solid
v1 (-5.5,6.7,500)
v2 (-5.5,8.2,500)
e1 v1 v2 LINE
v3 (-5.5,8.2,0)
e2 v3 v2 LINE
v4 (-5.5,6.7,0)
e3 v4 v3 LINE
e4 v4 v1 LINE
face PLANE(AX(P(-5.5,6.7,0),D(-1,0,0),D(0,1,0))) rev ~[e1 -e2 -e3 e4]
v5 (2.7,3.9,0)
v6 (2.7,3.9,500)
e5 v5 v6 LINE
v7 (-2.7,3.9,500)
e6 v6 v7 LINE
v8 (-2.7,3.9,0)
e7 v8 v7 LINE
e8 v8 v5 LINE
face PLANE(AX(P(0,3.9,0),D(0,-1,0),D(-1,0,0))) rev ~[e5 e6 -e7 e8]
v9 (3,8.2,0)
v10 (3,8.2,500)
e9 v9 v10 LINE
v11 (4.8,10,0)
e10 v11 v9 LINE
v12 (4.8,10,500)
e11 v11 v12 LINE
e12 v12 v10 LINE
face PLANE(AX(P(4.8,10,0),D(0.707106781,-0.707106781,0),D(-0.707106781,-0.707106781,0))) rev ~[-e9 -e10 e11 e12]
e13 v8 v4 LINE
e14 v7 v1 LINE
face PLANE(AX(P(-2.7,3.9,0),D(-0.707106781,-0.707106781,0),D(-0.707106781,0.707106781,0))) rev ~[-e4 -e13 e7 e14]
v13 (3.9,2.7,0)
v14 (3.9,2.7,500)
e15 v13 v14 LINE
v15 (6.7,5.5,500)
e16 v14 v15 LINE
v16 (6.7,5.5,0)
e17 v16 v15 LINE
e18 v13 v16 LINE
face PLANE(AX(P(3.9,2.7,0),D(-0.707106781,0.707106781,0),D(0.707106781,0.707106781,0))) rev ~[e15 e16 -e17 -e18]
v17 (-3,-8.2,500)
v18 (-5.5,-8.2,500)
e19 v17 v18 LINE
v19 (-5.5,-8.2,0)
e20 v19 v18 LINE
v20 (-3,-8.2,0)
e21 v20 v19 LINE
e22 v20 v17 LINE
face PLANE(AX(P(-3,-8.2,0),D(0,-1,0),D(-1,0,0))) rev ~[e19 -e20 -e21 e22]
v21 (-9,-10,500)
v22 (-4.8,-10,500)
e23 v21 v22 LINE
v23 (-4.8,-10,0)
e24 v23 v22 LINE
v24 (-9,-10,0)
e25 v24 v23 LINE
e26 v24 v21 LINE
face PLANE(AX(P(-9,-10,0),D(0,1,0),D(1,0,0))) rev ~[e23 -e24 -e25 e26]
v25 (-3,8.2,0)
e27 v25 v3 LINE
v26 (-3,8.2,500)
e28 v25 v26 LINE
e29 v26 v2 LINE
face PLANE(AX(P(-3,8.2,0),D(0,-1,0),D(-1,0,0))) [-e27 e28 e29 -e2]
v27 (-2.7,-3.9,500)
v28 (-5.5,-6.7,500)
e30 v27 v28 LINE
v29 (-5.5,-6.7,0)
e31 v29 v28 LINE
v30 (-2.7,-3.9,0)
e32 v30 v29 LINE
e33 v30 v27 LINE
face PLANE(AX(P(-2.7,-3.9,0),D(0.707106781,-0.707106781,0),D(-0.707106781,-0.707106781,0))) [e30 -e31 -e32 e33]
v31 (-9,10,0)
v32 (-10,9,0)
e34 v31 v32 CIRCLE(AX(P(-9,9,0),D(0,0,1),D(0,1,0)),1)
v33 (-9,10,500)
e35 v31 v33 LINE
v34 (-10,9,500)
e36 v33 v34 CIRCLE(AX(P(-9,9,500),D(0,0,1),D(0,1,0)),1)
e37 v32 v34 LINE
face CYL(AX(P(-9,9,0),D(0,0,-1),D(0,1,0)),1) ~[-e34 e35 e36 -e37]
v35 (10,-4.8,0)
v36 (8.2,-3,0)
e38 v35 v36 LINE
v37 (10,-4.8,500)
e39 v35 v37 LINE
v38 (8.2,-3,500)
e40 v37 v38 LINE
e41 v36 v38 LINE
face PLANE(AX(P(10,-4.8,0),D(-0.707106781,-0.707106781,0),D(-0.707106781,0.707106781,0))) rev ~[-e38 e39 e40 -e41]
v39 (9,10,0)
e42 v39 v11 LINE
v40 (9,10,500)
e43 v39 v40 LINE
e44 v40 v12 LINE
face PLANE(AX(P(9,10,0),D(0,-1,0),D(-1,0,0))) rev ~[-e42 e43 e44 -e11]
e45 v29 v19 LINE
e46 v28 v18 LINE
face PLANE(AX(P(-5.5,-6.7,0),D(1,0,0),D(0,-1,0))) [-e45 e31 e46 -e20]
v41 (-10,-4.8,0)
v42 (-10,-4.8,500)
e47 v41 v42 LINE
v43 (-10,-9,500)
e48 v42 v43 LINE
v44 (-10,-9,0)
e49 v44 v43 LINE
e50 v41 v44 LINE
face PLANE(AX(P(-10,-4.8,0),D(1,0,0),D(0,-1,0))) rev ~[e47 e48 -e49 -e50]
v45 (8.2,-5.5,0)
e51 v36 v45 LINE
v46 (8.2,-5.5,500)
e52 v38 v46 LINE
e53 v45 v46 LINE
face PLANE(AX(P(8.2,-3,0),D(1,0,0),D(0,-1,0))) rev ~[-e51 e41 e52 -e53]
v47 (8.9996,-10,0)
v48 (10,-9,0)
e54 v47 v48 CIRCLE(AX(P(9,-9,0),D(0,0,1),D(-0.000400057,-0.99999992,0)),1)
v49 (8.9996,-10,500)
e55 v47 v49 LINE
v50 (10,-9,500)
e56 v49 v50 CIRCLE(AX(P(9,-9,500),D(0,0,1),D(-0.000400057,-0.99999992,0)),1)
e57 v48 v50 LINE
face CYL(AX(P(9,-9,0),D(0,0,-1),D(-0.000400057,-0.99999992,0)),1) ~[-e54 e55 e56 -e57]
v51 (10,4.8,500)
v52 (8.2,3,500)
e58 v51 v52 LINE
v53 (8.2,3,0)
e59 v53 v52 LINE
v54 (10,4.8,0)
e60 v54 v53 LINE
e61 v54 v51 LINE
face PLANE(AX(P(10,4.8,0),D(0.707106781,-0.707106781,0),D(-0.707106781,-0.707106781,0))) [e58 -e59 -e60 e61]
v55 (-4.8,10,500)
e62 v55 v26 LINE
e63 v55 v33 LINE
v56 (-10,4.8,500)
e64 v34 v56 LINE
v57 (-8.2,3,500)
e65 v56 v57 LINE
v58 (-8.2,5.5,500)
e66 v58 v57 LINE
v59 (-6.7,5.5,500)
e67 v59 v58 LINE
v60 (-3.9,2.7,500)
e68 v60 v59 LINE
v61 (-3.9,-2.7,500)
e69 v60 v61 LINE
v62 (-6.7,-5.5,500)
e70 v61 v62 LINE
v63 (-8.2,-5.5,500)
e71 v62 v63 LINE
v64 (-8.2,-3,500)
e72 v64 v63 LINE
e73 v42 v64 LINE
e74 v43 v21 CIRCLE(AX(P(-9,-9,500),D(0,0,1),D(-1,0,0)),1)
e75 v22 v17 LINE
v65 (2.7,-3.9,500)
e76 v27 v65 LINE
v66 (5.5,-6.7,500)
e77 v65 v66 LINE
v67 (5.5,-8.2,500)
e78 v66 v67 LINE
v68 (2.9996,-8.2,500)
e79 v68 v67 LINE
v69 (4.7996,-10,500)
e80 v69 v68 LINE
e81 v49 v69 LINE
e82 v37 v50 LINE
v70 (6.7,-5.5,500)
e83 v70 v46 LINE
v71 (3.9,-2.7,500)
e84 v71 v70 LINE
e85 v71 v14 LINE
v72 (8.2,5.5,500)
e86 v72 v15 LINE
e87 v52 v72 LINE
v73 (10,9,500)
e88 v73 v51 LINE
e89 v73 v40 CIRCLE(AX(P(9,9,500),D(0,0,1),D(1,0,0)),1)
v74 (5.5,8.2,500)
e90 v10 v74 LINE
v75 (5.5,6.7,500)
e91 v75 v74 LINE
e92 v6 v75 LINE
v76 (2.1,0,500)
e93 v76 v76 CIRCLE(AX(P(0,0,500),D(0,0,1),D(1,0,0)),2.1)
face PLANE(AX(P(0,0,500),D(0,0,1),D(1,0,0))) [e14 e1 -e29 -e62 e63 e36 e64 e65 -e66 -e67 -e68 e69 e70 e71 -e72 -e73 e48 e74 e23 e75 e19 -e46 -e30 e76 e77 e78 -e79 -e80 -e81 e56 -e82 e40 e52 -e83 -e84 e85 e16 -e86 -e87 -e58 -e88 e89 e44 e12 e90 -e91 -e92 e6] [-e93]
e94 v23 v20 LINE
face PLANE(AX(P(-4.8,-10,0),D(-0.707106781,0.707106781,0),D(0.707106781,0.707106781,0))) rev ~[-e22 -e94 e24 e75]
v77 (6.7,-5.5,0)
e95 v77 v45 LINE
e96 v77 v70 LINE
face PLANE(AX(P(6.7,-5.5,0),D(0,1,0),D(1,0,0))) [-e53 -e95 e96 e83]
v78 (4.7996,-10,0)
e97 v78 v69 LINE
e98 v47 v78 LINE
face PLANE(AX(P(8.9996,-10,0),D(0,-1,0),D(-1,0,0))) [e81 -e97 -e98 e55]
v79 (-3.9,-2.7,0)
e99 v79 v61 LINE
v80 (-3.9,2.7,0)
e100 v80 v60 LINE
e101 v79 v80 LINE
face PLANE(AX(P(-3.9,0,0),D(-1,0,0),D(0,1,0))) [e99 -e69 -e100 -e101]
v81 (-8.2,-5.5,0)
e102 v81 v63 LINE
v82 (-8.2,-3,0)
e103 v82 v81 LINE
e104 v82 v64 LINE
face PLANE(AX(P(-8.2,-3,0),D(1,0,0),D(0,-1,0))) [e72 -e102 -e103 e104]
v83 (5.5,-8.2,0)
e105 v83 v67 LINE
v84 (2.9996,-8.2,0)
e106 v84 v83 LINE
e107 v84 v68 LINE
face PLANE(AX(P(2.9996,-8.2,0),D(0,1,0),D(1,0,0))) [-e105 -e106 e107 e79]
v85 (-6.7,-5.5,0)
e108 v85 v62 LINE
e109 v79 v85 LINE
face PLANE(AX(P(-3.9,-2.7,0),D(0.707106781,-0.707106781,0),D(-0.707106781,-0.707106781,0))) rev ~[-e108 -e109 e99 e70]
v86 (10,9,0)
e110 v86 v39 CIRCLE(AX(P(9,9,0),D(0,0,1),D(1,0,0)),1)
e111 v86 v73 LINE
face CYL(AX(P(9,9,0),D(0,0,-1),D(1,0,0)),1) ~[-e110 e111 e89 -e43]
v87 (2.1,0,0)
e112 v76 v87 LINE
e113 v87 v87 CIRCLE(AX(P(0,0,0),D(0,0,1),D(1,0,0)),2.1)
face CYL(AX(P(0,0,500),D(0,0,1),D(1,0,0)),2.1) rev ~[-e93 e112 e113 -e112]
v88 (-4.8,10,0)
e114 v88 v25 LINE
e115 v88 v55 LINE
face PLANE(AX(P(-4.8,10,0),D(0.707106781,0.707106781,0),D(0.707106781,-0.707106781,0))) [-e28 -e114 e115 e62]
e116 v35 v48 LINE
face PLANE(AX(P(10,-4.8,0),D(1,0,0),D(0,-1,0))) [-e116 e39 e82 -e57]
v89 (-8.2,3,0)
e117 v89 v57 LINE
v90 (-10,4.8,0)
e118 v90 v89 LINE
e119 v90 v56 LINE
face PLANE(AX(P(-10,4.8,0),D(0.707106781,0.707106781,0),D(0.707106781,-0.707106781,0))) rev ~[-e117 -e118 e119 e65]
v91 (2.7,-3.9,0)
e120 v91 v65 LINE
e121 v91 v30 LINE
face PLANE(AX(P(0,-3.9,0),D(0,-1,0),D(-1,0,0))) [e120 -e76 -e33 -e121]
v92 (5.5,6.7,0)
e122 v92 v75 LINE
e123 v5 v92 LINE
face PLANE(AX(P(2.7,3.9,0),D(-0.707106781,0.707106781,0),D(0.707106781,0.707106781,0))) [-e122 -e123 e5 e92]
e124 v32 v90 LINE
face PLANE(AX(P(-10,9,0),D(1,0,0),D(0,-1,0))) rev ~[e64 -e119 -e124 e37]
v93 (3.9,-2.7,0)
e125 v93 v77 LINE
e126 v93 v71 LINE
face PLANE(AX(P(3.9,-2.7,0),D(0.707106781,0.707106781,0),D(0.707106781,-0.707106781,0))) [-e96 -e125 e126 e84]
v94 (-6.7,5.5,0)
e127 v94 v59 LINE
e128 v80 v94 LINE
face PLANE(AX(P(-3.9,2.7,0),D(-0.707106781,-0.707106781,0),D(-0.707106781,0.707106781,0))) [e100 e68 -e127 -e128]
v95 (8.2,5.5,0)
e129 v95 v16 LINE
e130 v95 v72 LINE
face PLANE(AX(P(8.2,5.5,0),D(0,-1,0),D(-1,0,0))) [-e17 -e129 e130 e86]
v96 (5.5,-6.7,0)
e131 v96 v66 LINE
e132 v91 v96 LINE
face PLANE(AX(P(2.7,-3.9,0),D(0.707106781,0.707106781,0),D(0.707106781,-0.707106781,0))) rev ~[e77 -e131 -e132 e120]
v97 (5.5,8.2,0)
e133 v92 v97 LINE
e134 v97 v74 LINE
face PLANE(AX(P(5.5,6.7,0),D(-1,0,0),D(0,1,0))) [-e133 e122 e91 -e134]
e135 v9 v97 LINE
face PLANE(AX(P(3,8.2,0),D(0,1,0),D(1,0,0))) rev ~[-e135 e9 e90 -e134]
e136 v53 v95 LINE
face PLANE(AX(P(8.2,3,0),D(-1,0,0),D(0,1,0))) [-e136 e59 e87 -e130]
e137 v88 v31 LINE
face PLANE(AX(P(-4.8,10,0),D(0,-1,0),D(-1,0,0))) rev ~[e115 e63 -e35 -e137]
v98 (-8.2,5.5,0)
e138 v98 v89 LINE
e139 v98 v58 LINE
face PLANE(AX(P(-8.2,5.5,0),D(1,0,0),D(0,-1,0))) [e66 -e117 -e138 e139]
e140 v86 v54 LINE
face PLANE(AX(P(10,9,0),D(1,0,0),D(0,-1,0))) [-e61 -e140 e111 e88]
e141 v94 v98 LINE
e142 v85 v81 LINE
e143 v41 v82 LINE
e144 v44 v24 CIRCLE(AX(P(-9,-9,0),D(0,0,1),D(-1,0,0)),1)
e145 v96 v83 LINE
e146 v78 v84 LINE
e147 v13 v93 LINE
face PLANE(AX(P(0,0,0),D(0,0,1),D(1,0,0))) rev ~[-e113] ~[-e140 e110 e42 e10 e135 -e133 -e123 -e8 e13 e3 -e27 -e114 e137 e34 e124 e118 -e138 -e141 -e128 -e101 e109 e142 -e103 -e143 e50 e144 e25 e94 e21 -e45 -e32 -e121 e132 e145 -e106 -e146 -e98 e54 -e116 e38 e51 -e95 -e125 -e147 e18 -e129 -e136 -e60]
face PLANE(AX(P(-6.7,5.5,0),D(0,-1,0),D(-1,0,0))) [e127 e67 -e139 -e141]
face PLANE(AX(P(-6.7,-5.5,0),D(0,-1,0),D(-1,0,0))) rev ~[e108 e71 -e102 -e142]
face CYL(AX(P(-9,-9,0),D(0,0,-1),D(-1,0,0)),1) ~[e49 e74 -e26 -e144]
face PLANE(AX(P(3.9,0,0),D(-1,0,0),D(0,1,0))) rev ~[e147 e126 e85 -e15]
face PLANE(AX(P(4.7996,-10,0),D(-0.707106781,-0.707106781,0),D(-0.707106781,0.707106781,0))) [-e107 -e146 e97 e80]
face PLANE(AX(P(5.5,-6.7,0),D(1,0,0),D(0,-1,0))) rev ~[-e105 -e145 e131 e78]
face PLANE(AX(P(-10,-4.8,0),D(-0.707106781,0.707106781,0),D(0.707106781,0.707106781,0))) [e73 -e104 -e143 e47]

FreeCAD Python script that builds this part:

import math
import FreeCAD as App
import Part
import Sketcher

V = App.Vector

doc = App.newDocument("Part")
body = doc.addObject("PartDesign::Body", "Body")

# Sketch on XY plane
sketch1 = body.newObject("Sketcher::SketchObject", "Sketch")
sketch1.AttachmentSupport = (doc.getObject("XY_Plane"), [""])
sketch1.MapMode = "FlatFace"
sketch1.addGeometry([
    Part.LineSegment(V(-3, 8.2, 0), V(-4.8, 10, 0)),  # 0
    Part.LineSegment(V(-4.8, 10, 0), V(-9, 10, 0)),  # 1
    Part.ArcOfCircle(Part.Circle(V(-9, 9, 0), V(0, 0, 1), 1), math.radians(90), math.radians(180)),  # 2
    Part.LineSegment(V(-10, 9, 0), V(-10, 4.8, 0)),  # 3
    Part.LineSegment(V(-10, 4.8, 0), V(-8.2, 3, 0)),  # 4
    Part.LineSegment(V(-8.2, 3, 0), V(-8.2, 5.5, 0)),  # 5
    Part.LineSegment(V(-8.2, 5.5, 0), V(-6.7, 5.5, 0)),  # 6
    Part.LineSegment(V(-6.7, 5.5, 0), V(-3.9, 2.7, 0)),  # 7
    Part.LineSegment(V(-3.9, 2.7, 0), V(-3.9, -2.7, 0)),  # 8
    Part.LineSegment(V(-3.9, -2.7, 0), V(-6.7, -5.5, 0)),  # 9
    Part.LineSegment(V(-6.7, -5.5, 0), V(-8.2, -5.5, 0)),  # 10
    Part.LineSegment(V(-8.2, -5.5, 0), V(-8.2, -3, 0)),  # 11
    Part.LineSegment(V(-8.2, -3, 0), V(-10, -4.8, 0)),  # 12
    Part.LineSegment(V(-10, -4.8, 0), V(-10, -9, 0)),  # 13
    Part.ArcOfCircle(Part.Circle(V(-9, -9, 0), V(0, 0, 1), 1), math.radians(180), math.radians(270)),  # 14
    Part.LineSegment(V(-9, -10, 0), V(-4.8, -10, 0)),  # 15
    Part.LineSegment(V(-4.8, -10, 0), V(-3, -8.2, 0)),  # 16
    Part.LineSegment(V(-3, -8.2, 0), V(-5.5, -8.2, 0)),  # 17
    Part.LineSegment(V(-5.5, -8.2, 0), V(-5.5, -6.7, 0)),  # 18
    Part.LineSegment(V(-5.5, -6.7, 0), V(-2.7, -3.9, 0)),  # 19
    Part.LineSegment(V(-2.7, -3.9, 0), V(2.7, -3.9, 0)),  # 20
    Part.LineSegment(V(2.7, -3.9, 0), V(5.5, -6.7, 0)),  # 21
    Part.LineSegment(V(5.5, -6.7, 0), V(5.5, -8.2, 0)),  # 22
    Part.LineSegment(V(5.5, -8.2, 0), V(3, -8.2, 0)),  # 23
    Part.LineSegment(V(3, -8.2, 0), V(4.8, -10, 0)),  # 24
    Part.LineSegment(V(4.8, -10, 0), V(9, -10, 0)),  # 25
    Part.ArcOfCircle(Part.Circle(V(9, -9, 0), V(0, 0, 1), 1), math.radians(-90), math.radians(0)),  # 26
    Part.LineSegment(V(10, -9, 0), V(10, -4.8, 0)),  # 27
    Part.LineSegment(V(10, -4.8, 0), V(8.2, -3, 0)),  # 28
    Part.LineSegment(V(8.2, -3, 0), V(8.2, -5.5, 0)),  # 29
    Part.LineSegment(V(8.2, -5.5, 0), V(6.7, -5.5, 0)),  # 30
    Part.LineSegment(V(6.7, -5.5, 0), V(3.9, -2.7, 0)),  # 31
    Part.LineSegment(V(3.9, -2.7, 0), V(3.9, 2.7, 0)),  # 32
    Part.LineSegment(V(3.9, 2.7, 0), V(6.7, 5.5, 0)),  # 33
    Part.LineSegment(V(6.7, 5.5, 0), V(8.2, 5.5, 0)),  # 34
    Part.LineSegment(V(8.2, 5.5, 0), V(8.2, 3, 0)),  # 35
    Part.LineSegment(V(8.2, 3, 0), V(10, 4.8, 0)),  # 36
    Part.LineSegment(V(10, 4.8, 0), V(10, 9, 0)),  # 37
    Part.ArcOfCircle(Part.Circle(V(9, 9, 0), V(0, 0, 1), 1), math.radians(0), math.radians(90)),  # 38
    Part.LineSegment(V(9, 10, 0), V(4.8, 10, 0)),  # 39
    Part.LineSegment(V(4.8, 10, 0), V(3, 8.2, 0)),  # 40
    Part.LineSegment(V(3, 8.2, 0), V(5.5, 8.2, 0)),  # 41
    Part.LineSegment(V(5.5, 8.2, 0), V(5.5, 6.7, 0)),  # 42
    Part.LineSegment(V(5.5, 6.7, 0), V(2.7, 3.9, 0)),  # 43
    Part.LineSegment(V(2.7, 3.9, 0), V(-2.7, 3.9, 0)),  # 44
    Part.LineSegment(V(-2.7, 3.9, 0), V(-5.5, 6.7, 0)),  # 45
    Part.LineSegment(V(-5.5, 6.7, 0), V(-5.5, 8.2, 0)),  # 46
    Part.LineSegment(V(-5.5, 8.2, 0), V(-3, 8.2, 0)),  # 47
], False)
sketch1.addConstraint([
    Sketcher.Constraint("Coincident", 0, 2, 1, 1),
    Sketcher.Constraint("Tangent", 1, 2, 2, 1),
    Sketcher.Constraint("Tangent", 2, 2, 3, 1),
    Sketcher.Constraint("Coincident", 3, 2, 4, 1),
    Sketcher.Constraint("Coincident", 4, 2, 5, 1),
    Sketcher.Constraint("Coincident", 5, 2, 6, 1),
    Sketcher.Constraint("Coincident", 6, 2, 7, 1),
    Sketcher.Constraint("Coincident", 7, 2, 8, 1),
    Sketcher.Constraint("Coincident", 8, 2, 9, 1),
    Sketcher.Constraint("Coincident", 9, 2, 10, 1),
    Sketcher.Constraint("Coincident", 10, 2, 11, 1),
    Sketcher.Constraint("Coincident", 11, 2, 12, 1),
    Sketcher.Constraint("Coincident", 12, 2, 13, 1),
    Sketcher.Constraint("Tangent", 13, 2, 14, 1),
    Sketcher.Constraint("Tangent", 14, 2, 15, 1),
    Sketcher.Constraint("Coincident", 15, 2, 16, 1),
    Sketcher.Constraint("Coincident", 16, 2, 17, 1),
    Sketcher.Constraint("Coincident", 17, 2, 18, 1),
    Sketcher.Constraint("Coincident", 18, 2, 19, 1),
    Sketcher.Constraint("Coincident", 19, 2, 20, 1),
    Sketcher.Constraint("Coincident", 20, 2, 21, 1),
    Sketcher.Constraint("Coincident", 21, 2, 22, 1),
    Sketcher.Constraint("Coincident", 22, 2, 23, 1),
    Sketcher.Constraint("Coincident", 23, 2, 24, 1),
    Sketcher.Constraint("Coincident", 24, 2, 25, 1),
    Sketcher.Constraint("Tangent", 25, 2, 26, 1),
    Sketcher.Constraint("Tangent", 26, 2, 27, 1),
    Sketcher.Constraint("Coincident", 27, 2, 28, 1),
    Sketcher.Constraint("Coincident", 28, 2, 29, 1),
    Sketcher.Constraint("Coincident", 29, 2, 30, 1),
    Sketcher.Constraint("Coincident", 30, 2, 31, 1),
    Sketcher.Constraint("Coincident", 31, 2, 32, 1),
    Sketcher.Constraint("Coincident", 32, 2, 33, 1),
    Sketcher.Constraint("Coincident", 33, 2, 34, 1),
    Sketcher.Constraint("Coincident", 34, 2, 35, 1),
    Sketcher.Constraint("Coincident", 35, 2, 36, 1),
    Sketcher.Constraint("Coincident", 36, 2, 37, 1),
    Sketcher.Constraint("Tangent", 37, 2, 38, 1),
    Sketcher.Constraint("Tangent", 38, 2, 39, 1),
    Sketcher.Constraint("Coincident", 39, 2, 40, 1),
    Sketcher.Constraint("Coincident", 40, 2, 41, 1),
    Sketcher.Constraint("Coincident", 41, 2, 42, 1),
    Sketcher.Constraint("Coincident", 42, 2, 43, 1),
    Sketcher.Constraint("Coincident", 43, 2, 44, 1),
    Sketcher.Constraint("Coincident", 44, 2, 45, 1),
    Sketcher.Constraint("Coincident", 45, 2, 46, 1),
    Sketcher.Constraint("Coincident", 46, 2, 47, 1),
    Sketcher.Constraint("Coincident", 47, 2, 0, 1),
    Sketcher.Constraint("Horizontal", 1),
    Sketcher.Constraint("Vertical", 3),
    Sketcher.Constraint("Vertical", 5),
    Sketcher.Constraint("Horizontal", 6),
    Sketcher.Constraint("Vertical", 8),
    Sketcher.Constraint("Horizontal", 10),
    Sketcher.Constraint("Vertical", 11),
    Sketcher.Constraint("Vertical", 13),
    Sketcher.Constraint("Horizontal", 15),
    Sketcher.Constraint("Horizontal", 17),
    Sketcher.Constraint("Vertical", 18),
    Sketcher.Constraint("Horizontal", 20),
    Sketcher.Constraint("Vertical", 22),
    Sketcher.Constraint("Horizontal", 23),
    Sketcher.Constraint("Horizontal", 25),
    Sketcher.Constraint("Vertical", 27),
    Sketcher.Constraint("Vertical", 29),
    Sketcher.Constraint("Horizontal", 30),
    Sketcher.Constraint("Vertical", 32),
    Sketcher.Constraint("Horizontal", 34),
    Sketcher.Constraint("Vertical", 35),
    Sketcher.Constraint("Vertical", 37),
    Sketcher.Constraint("Horizontal", 39),
    Sketcher.Constraint("Horizontal", 41),
    Sketcher.Constraint("Vertical", 42),
    Sketcher.Constraint("Horizontal", 44),
    Sketcher.Constraint("Vertical", 46),
    Sketcher.Constraint("Horizontal", 47),
    Sketcher.Constraint("Equal", 2, 14),
    Sketcher.Constraint("Equal", 14, 26),
    Sketcher.Constraint("Equal", 26, 38),
    Sketcher.Constraint("Symmetric", 2, 3, 26, 3, -1, 1),
    Sketcher.Constraint("Symmetric", 14, 3, 38, 3, -1, 1),
    Sketcher.Constraint("Symmetric", 4, 2, 28, 2, -1, 1),
    Sketcher.Constraint("Symmetric", 6, 2, 30, 2, -1, 1),
    Sketcher.Constraint("Symmetric", 7, 2, 31, 2, -1, 1),
    Sketcher.Constraint("Symmetric", 9, 2, 33, 2, -1, 1),
    Sketcher.Constraint("Symmetric", 11, 2, 35, 2, -1, 1),
    Sketcher.Constraint("Symmetric", 16, 2, 40, 2, -1, 1),
    Sketcher.Constraint("Symmetric", 18, 2, 42, 2, -1, 1),
    Sketcher.Constraint("Symmetric", 19, 2, 43, 2, -1, 1),
    Sketcher.Constraint("Symmetric", 21, 2, 45, 2, -1, 1),
    Sketcher.Constraint("Symmetric", 23, 2, 47, 2, -1, 1),
    Sketcher.Constraint("Symmetric", 14, 3, 26, 3, -2),
    Sketcher.Constraint("Symmetric", 18, 2, 21, 2, -2),
    Sketcher.Constraint("Symmetric", 16, 2, 23, 2, -2),
    Sketcher.Constraint("Symmetric", 11, 2, 28, 2, -2),
    Sketcher.Constraint("Symmetric", 9, 2, 30, 2, -2),
    Sketcher.Constraint("Parallel", 0, 4),
    Sketcher.Constraint("Parallel", 4, 7),
    Sketcher.Constraint("Perpendicular", 7, 9),
    Sketcher.Constraint("Parallel", 9, 12),
    Sketcher.Constraint("Parallel", 12, 16),
    Sketcher.Constraint("Parallel", 16, 19),
    Sketcher.Constraint("Perpendicular", 19, 21),
    Sketcher.Constraint("Parallel", 21, 24),
    Sketcher.Constraint("Parallel", 24, 28),
    Sketcher.Constraint("Perpendicular", 31, 33),
    Sketcher.Constraint("Parallel", 33, 36),
    Sketcher.Constraint("Parallel", 36, 40),
    Sketcher.Constraint("Perpendicular", 43, 45),
    Sketcher.Constraint("Horizontal", 12, 2, 27, 2),
    Sketcher.Constraint("Equal", 39, 3),
    Sketcher.Constraint("Equal", 47, 5),
    Sketcher.Constraint("Equal", 44, 8),
    Sketcher.Constraint("Equal", 34, 18),
    Sketcher.Constraint("Equal", 0, 4),
    Sketcher.Constraint("Equal", 9, 19),
    Sketcher.Constraint("Radius", 2, 1.0),
    Sketcher.Constraint("DistanceX", 1, 2, 1, 1, 4.2),
    Sketcher.Constraint("DistanceX", 6, 1, 6, 2, 1.5),
    Sketcher.Constraint("DistanceX", 17, 2, 17, 1, 2.5),
    Sketcher.Constraint("DistanceX", 2, 3, -1, 1, 9.0),
    Sketcher.Constraint("DistanceY", 4, 2, 2, 3, 6.0),
    Sketcher.Constraint("DistanceX", 7, 2, -1, 1, 3.9),
])
pad1 = body.newObject("PartDesign::Pad", "Pad")
pad1.Profile = sketch1
pad1.Length = 500

# Sketch on XY plane
sketch2 = body.newObject("Sketcher::SketchObject", "Sketch001")
sketch2.AttachmentSupport = (doc.getObject("XY_Plane"), [""])
sketch2.MapMode = "FlatFace"
sketch2.AttachmentOffset = App.Placement(V(0, 0, 500), App.Rotation())
sketch2.addGeometry(Part.Circle(V(0, 0, 0), V(0, 0, 1), 2.1), False)
sketch2.addConstraint([
    Sketcher.Constraint("Coincident", 0, 3, -1, 1),
    Sketcher.Constraint("Diameter", 0, 4.2),
])
pocket1 = body.newObject("PartDesign::Pocket", "Pocket")
pocket1.Profile = sketch2
pocket1.Type = "ThroughAll"

doc.recompute()
